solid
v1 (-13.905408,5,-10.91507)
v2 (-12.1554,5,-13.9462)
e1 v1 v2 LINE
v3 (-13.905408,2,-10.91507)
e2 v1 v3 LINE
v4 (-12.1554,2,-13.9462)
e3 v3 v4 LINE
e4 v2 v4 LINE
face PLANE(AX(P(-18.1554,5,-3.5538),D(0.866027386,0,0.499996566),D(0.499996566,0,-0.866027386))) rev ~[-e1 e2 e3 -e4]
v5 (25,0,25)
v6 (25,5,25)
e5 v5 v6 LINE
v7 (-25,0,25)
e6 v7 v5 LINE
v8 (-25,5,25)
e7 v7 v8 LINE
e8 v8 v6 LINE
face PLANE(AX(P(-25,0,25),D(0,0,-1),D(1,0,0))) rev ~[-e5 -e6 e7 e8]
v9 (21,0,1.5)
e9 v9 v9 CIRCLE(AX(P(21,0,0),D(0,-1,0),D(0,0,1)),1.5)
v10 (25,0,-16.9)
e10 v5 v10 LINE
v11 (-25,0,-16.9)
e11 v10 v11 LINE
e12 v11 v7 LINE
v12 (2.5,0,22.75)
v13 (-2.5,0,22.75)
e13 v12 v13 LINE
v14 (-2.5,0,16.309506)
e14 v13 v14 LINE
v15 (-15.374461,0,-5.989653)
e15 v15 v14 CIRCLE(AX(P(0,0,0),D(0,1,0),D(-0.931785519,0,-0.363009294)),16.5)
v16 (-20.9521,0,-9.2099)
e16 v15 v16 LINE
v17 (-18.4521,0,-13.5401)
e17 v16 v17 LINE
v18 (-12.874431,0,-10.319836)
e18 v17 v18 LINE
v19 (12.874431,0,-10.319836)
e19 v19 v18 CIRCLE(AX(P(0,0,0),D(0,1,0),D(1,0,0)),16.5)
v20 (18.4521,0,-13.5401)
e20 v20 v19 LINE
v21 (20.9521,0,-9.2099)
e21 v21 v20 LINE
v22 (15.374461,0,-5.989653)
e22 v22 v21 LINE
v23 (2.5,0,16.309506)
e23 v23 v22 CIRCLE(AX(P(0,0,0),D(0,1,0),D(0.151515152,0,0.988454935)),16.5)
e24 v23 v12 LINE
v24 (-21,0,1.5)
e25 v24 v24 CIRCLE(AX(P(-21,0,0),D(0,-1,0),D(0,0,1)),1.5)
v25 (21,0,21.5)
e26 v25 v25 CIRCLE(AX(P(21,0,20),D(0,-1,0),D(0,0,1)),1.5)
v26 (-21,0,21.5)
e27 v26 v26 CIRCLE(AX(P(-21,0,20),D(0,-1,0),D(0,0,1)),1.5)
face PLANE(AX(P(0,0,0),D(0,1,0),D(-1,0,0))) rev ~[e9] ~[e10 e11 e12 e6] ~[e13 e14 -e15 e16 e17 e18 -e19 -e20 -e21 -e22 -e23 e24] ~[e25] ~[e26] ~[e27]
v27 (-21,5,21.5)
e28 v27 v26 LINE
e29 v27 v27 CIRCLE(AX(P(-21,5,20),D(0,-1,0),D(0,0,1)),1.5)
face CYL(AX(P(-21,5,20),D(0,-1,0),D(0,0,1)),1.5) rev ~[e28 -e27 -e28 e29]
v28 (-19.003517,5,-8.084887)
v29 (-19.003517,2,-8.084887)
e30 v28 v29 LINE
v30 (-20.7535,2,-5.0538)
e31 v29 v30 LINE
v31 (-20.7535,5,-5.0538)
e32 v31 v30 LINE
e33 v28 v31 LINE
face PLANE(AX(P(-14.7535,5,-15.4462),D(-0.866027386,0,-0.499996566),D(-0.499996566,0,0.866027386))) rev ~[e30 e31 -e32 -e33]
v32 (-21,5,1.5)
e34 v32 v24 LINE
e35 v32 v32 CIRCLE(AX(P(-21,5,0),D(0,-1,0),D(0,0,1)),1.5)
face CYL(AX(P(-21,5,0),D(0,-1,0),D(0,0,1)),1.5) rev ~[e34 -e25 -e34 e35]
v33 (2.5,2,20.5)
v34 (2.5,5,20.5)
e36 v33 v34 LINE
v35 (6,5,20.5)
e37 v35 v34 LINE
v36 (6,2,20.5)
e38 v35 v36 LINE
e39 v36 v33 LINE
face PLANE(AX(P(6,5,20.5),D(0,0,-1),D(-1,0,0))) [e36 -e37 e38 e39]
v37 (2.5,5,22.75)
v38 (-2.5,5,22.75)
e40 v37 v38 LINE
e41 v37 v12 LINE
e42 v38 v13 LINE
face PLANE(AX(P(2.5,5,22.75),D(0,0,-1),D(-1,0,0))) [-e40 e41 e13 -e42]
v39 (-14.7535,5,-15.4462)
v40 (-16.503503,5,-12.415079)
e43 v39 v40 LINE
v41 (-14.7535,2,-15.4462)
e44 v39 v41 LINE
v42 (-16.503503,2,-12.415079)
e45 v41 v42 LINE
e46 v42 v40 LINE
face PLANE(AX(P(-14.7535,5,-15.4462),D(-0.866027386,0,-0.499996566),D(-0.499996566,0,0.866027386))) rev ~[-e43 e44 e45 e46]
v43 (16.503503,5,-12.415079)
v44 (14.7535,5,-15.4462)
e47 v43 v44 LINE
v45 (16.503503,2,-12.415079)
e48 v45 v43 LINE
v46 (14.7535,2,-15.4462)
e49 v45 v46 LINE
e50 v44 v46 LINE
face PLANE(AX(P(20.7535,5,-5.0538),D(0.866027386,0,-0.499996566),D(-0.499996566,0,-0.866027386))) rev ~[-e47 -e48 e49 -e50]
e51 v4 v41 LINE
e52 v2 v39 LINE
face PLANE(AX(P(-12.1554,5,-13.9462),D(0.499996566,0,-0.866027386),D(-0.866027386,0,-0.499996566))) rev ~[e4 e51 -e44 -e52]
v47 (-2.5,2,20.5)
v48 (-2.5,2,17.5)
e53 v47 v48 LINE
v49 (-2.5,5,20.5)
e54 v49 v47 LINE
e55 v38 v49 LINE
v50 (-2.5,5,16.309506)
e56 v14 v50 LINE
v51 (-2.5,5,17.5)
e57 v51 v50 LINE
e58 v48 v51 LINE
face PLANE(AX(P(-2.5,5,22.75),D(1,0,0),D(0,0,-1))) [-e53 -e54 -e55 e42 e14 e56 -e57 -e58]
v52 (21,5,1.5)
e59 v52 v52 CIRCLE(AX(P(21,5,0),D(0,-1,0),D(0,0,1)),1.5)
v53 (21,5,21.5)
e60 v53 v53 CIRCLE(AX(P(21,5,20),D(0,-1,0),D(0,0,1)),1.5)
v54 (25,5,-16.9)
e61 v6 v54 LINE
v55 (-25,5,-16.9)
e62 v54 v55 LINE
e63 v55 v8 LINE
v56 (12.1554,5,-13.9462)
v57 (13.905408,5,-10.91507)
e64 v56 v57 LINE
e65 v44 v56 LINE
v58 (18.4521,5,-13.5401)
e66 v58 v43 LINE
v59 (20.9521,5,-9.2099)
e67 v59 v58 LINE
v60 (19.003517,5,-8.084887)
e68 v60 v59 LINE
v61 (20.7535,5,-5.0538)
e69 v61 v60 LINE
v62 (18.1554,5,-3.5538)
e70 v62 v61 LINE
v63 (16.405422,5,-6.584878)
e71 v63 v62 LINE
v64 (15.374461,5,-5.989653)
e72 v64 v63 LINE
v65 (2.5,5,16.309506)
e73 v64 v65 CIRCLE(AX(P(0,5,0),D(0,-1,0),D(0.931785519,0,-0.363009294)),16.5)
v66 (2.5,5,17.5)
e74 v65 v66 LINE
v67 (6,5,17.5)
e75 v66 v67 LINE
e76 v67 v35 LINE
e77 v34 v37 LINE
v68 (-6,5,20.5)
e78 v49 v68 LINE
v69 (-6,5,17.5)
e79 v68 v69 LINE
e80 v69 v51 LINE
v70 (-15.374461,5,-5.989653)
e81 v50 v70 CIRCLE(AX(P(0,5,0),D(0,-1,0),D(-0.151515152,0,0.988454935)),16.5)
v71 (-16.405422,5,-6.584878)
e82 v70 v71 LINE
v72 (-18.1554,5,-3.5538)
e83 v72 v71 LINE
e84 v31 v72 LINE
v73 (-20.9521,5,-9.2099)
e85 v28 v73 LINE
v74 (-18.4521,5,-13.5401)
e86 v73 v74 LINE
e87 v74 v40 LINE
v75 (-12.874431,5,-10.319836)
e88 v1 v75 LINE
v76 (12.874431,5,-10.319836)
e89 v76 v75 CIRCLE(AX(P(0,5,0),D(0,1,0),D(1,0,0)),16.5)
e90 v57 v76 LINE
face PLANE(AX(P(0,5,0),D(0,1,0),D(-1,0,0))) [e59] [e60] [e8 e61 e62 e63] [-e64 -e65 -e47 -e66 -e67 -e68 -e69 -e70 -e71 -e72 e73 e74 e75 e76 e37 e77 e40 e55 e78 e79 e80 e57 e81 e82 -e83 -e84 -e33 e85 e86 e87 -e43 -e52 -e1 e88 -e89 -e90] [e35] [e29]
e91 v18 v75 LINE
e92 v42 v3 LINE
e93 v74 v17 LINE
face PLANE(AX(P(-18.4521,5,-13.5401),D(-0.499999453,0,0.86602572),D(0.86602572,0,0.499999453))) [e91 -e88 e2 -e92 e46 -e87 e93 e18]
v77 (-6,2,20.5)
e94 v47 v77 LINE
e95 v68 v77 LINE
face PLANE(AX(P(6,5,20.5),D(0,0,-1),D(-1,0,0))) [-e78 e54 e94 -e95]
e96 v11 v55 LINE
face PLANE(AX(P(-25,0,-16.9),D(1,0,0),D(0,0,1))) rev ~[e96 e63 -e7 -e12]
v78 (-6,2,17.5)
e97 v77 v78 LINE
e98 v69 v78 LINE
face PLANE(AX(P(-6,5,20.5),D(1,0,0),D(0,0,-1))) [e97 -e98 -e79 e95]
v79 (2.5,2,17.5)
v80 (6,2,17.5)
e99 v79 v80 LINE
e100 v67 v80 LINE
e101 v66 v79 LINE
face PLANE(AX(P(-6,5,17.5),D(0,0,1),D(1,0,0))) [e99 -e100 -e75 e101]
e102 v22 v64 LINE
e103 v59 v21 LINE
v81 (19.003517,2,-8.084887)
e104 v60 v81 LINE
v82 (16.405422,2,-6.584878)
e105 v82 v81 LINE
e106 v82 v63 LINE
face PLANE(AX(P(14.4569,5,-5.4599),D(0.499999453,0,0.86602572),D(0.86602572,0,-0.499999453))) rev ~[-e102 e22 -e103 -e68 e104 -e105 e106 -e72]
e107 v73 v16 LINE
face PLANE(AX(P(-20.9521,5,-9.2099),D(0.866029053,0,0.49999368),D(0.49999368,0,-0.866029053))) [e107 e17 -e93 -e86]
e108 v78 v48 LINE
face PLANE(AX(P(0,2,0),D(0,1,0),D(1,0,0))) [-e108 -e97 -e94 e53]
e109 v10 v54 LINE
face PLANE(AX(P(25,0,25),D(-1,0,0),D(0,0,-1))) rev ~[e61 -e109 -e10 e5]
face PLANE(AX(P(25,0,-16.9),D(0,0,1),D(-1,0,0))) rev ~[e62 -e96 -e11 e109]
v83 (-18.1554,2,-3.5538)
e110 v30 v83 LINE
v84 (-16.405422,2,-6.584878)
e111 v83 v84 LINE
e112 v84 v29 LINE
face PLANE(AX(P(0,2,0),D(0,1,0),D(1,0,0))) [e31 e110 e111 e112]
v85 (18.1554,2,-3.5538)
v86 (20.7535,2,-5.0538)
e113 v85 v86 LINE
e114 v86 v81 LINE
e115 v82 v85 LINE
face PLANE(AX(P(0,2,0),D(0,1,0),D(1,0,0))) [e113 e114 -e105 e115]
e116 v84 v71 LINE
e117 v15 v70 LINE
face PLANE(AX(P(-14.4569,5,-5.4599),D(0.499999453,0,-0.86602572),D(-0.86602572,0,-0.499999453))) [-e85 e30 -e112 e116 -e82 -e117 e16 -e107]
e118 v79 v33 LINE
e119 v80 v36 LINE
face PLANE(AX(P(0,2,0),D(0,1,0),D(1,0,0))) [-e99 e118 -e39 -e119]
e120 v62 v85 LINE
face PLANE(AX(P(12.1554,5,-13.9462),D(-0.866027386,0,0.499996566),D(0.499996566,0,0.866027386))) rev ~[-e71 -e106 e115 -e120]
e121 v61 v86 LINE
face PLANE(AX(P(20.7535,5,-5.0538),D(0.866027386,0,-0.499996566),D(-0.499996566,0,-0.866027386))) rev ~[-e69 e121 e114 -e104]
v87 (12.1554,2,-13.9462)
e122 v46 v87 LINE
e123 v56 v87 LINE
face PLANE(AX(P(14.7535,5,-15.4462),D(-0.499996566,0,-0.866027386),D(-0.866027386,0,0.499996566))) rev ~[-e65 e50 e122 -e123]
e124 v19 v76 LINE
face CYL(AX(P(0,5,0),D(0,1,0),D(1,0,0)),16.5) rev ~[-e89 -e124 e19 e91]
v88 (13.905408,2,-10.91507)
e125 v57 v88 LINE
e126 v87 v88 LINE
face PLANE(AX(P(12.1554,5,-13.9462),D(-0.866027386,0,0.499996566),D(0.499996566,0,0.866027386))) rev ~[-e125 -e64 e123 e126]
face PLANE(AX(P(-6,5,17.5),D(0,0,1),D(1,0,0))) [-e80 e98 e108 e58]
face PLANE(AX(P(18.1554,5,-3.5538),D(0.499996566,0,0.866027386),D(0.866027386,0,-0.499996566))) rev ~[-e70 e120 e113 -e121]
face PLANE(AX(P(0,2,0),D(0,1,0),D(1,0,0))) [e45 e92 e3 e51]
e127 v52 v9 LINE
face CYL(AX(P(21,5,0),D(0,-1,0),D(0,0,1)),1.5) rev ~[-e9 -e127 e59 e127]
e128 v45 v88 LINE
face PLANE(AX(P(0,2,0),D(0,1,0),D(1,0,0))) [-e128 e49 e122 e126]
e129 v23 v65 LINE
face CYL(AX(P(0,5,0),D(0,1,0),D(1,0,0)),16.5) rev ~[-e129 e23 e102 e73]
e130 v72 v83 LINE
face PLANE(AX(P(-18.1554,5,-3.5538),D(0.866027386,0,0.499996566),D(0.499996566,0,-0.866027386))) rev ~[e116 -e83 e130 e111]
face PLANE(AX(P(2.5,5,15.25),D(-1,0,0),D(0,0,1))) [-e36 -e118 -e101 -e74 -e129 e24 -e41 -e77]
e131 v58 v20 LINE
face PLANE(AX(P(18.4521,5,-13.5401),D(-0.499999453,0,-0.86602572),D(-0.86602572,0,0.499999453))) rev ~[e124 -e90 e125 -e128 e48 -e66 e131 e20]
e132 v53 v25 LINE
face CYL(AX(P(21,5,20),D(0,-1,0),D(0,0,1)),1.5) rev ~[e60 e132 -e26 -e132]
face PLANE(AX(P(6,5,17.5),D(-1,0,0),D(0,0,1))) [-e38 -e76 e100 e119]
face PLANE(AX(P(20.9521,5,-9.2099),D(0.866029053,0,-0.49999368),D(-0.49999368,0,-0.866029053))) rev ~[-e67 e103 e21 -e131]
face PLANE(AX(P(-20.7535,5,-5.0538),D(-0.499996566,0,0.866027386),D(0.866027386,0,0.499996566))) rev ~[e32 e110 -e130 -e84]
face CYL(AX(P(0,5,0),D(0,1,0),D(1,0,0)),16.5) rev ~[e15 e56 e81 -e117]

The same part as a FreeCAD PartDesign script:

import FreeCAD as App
import Part
import Sketcher
from FreeCAD import Vector
Q = App.Units.Quantity


def add_polygon(sketch, points):
    """Adds a closed chain of lines whose ends are joined by coincident constraints."""
    first, n = sketch.GeometryCount, len(points)
    for a, b in zip(points, points[1:] + points[:1]):
        sketch.addGeometry(Part.LineSegment(App.Vector(*a, 0), App.Vector(*b, 0)), False)
    for i in range(n):
        sketch.addConstraint(Sketcher.Constraint("Coincident", first + i, 2, first + (i + 1) % n, 1))

doc = App.newDocument("Part")
body = doc.addObject("PartDesign::Body", "Body")

# Sketch on XZ plane
sketch1 = body.newObject("Sketcher::SketchObject", "Sketch")
sketch1.AttachmentSupport = (doc.getObject("XZ_Plane"), [""])
sketch1.MapMode = "FlatFace"
add_polygon(sketch1, [(25, 25), (25, -17), (-25, -17), (-25, 25)])  # lines 0-3
sketch1.addConstraint(Sketcher.Constraint("Vertical", 0))
sketch1.addConstraint(Sketcher.Constraint("Horizontal", 1))
sketch1.addConstraint(Sketcher.Constraint("Vertical", 2))
sketch1.addConstraint(Sketcher.Constraint("Horizontal", 3))
sketch1.addConstraint(Sketcher.Constraint("DistanceX", 1, 2, 1, 1, 50.0))
sketch1.addConstraint(Sketcher.Constraint("DistanceX", -1, 1, 0, 2, 25.0))
sketch1.addConstraint(Sketcher.Constraint("DistanceY", -1, 1, 2, 2, 25.0))
sketch1.addConstraint(Sketcher.Constraint("DistanceY", 0, 2, -1, 1, 16.9))
pad1 = body.newObject("PartDesign::Pad", "Pad")
pad1.Profile = sketch1
pad1.Length = 5
pad1.Reversed = True

# Sketch on XZ plane
sketch2 = body.newObject("Sketcher::SketchObject", "Sketch001")
sketch2.AttachmentSupport = (doc.getObject("XZ_Plane"), [""])
sketch2.MapMode = "FlatFace"
sketch2.AttachmentOffset = App.Placement(Vector(0, 0, -5), App.Rotation())
sketch2.addGeometry(Part.Circle(Vector(0, 0, 0), Vector(0, 0, 1), 16), False)
sketch2.addConstraint(Sketcher.Constraint("Coincident", 0, 3, -1, 1))
sketch2.addConstraint(Sketcher.Constraint("Diameter", 0, 33.0))
pocket1 = body.newObject("PartDesign::Pocket", "Pocket")
pocket1.Profile = sketch2
pocket1.Length = 5
pocket1.Reversed = True

# Sketch on XZ plane
sketch3 = body.newObject("Sketcher::SketchObject", "Sketch002")
sketch3.AttachmentSupport = (doc.getObject("XZ_Plane"), [""])
sketch3.MapMode = "FlatFace"
sketch3.AttachmentOffset = App.Placement(Vector(0, 0, -5), App.Rotation())
add_polygon(sketch3, [(6, 17.5), (-6, 17.5), (-6, 20.5), (6, 20.5)])  # lines 0-3
add_polygon(sketch3, [(-12.2, -13.9), (-14.8, -15.4), (-20.8, -5.1), (-18.2, -3.6)])  # lines 4-7
add_polygon(sketch3, [(14.8, -15.4), (12.2, -13.9), (18.2, -3.6), (20.8, -5.1)])  # lines 8-11
sketch3.addConstraint(Sketcher.Constraint("Horizontal", 0))
sketch3.addConstraint(Sketcher.Constraint("Vertical", 1))
sketch3.addConstraint(Sketcher.Constraint("Horizontal", 2))
sketch3.addConstraint(Sketcher.Constraint("Vertical", 3))
sketch3.addConstraint(Sketcher.Constraint("Symmetric", 7, 2, 8, 2, -2))
sketch3.addConstraint(Sketcher.Constraint("Symmetric", 6, 2, 9, 2, -2))
sketch3.addConstraint(Sketcher.Constraint("Symmetric", 5, 2, 10, 2, -2))
sketch3.addConstraint(Sketcher.Constraint("Symmetric", 4, 2, 11, 2, -2))
sketch3.addConstraint(Sketcher.Constraint("Perpendicular", 4, 5))
sketch3.addConstraint(Sketcher.Constraint("Perpendicular", 5, 6))
sketch3.addConstraint(Sketcher.Constraint("Perpendicular", 6, 7))
sketch3.addConstraint(Sketcher.Constraint("DistanceX", 0, 2, 0, 1, 12.0))
sketch3.addConstraint(Sketcher.Constraint("DistanceY", 1, 1, 1, 2, 3.0))
sketch3.addConstraint(Sketcher.Constraint("Angle", 5, Q("119.9998 deg")))
sketch3.addConstraint(Sketcher.Constraint("Distance", 4, 3.0))
sketch3.addConstraint(Sketcher.Constraint("Distance", 5, 12.0))
sketch3.addConstraint(Sketcher.Constraint("DistanceX", 0, 2, -1, 1, 6.0))
sketch3.addConstraint(Sketcher.Constraint("DistanceY", -1, 1, 0, 2, 17.5))
sketch3.addConstraint(Sketcher.Constraint("DistanceX", 4, 2, 8, 2, 26.909))
sketch3.addConstraint(Sketcher.Constraint("DistanceY", 4, 2, -1, 1, 15.4462))
pocket2 = body.newObject("PartDesign::Pocket", "Pocket001")
pocket2.Profile = sketch3
pocket2.Length = 3
pocket2.Reversed = True

# Sketch on XZ plane
sketch4 = body.newObject("Sketcher::SketchObject", "Sketch003")
sketch4.AttachmentSupport = (doc.getObject("XZ_Plane"), [""])
sketch4.MapMode = "FlatFace"
sketch4.AttachmentOffset = App.Placement(Vector(0, 0, -5), App.Rotation())
add_polygon(sketch4, [(2, 23), (2, 15), (-2, 15), (-2, 23)])  # lines 0-3
add_polygon(sketch4, [(21, -9), (18, -14), (12, -10), (14, -5)])  # lines 4-7
add_polygon(sketch4, [(-12, -10), (-18, -14), (-21, -9), (-14, -5)])  # lines 8-11
sketch4.addConstraint(Sketcher.Constraint("Vertical", 0))
sketch4.addConstraint(Sketcher.Constraint("Horizontal", 1))
sketch4.addConstraint(Sketcher.Constraint("Vertical", 2))
sketch4.addConstraint(Sketcher.Constraint("Horizontal", 3))
sketch4.addConstraint(Sketcher.Constraint("Symmetric", 4, 2, 8, 2, -2))
sketch4.addConstraint(Sketcher.Constraint("Symmetric", 7, 2, 9, 2, -2))
sketch4.addConstraint(Sketcher.Constraint("Symmetric", 6, 2, 10, 2, -2))
sketch4.addConstraint(Sketcher.Constraint("Symmetric", 5, 2, 11, 2, -2))
sketch4.addConstraint(Sketcher.Constraint("Perpendicular", 4, 5))
sketch4.addConstraint(Sketcher.Constraint("Perpendicular", 5, 6))
sketch4.addConstraint(Sketcher.Constraint("Perpendicular", 6, 7))
sketch4.addConstraint(Sketcher.Constraint("DistanceX", 1, 2, 1, 1, 5.0))
sketch4.addConstraint(Sketcher.Constraint("Angle", 4, Q("-119.9996 deg")))
sketch4.addConstraint(Sketcher.Constraint("Distance", 4, 5.0))
sketch4.addConstraint(Sketcher.Constraint("DistanceY", 0, 2, 0, 1, 7.5))
sketch4.addConstraint(Sketcher.Constraint("Distance", 5, 7.5))
sketch4.addConstraint(Sketcher.Constraint("DistanceX", -1, 1, 0, 2, 2.5))
sketch4.addConstraint(Sketcher.Constraint("DistanceY", -1, 1, 0, 2, 15.25))
sketch4.addConstraint(Sketcher.Constraint("DistanceY", 4, 2, -1, 1, 13.54))
sketch4.addConstraint(Sketcher.Constraint("DistanceX", -1, 1, 4, 2, 18.452))
pocket3 = body.newObject("PartDesign::Pocket", "Pocket002")
pocket3.Profile = sketch4
pocket3.Length = 5
pocket3.Reversed = True

# Sketch on XZ plane
sketch5 = body.newObject("Sketcher::SketchObject", "Sketch004")
sketch5.AttachmentSupport = (doc.getObject("XZ_Plane"), [""])
sketch5.MapMode = "FlatFace"
sketch5.AttachmentOffset = App.Placement(Vector(0, 0, -5), App.Rotation())
sketch5.addGeometry(Part.Circle(Vector(21, 20, 0), Vector(0, 0, 1), 1.5), False)
sketch5.addGeometry(Part.Circle(Vector(-21, 20, 0), Vector(0, 0, 1), 1.5), False)
sketch5.addGeometry(Part.Circle(Vector(-21, 0, 0), Vector(0, 0, 1), 1.5), False)
sketch5.addGeometry(Part.Circle(Vector(21, 0, 0), Vector(0, 0, 1), 1.5), False)
sketch5.addGeometry(Part.Circle(Vector(15, 0, 0), Vector(0, 0, 1), 1.5), False)
sketch5.addGeometry(Part.Circle(Vector(-15, 0, 0), Vector(0, 0, 1), 1.5), False)
sketch5.addConstraint(Sketcher.Constraint("Equal", 0, 1))
sketch5.addConstraint(Sketcher.Constraint("Equal", 1, 2))
sketch5.addConstraint(Sketcher.Constraint("Equal", 2, 3))
sketch5.addConstraint(Sketcher.Constraint("Equal", 3, 4))
sketch5.addConstraint(Sketcher.Constraint("Equal", 4, 5))
sketch5.addConstraint(Sketcher.Constraint("Symmetric", 2, 3, 3, 3, -1, 1))
sketch5.addConstraint(Sketcher.Constraint("Symmetric", 4, 3, 5, 3, -1, 1))
sketch5.addConstraint(Sketcher.Constraint("Symmetric", 0, 3, 1, 3, -2))
sketch5.addConstraint(Sketcher.Constraint("PointOnObject", 2, 3, -1))
sketch5.addConstraint(Sketcher.Constraint("PointOnObject", 4, 3, -1))
sketch5.addConstraint(Sketcher.Constraint("Vertical", 1, 3, 2, 3))
sketch5.addConstraint(Sketcher.Constraint("Diameter", 0, 3.0))
sketch5.addConstraint(Sketcher.Constraint("DistanceX", -1, 1, 0, 3, 21.0))
sketch5.addConstraint(Sketcher.Constraint("DistanceY", -1, 1, 0, 3, 20.0))
sketch5.addConstraint(Sketcher.Constraint("DistanceX", -1, 1, 4, 3, 15.0))
doc.recompute()
hole = body.newObject("PartDesign::Hole", "Hole")
hole.Profile = sketch5
hole.ThreadType = "None"
hole.Diameter = 3
hole.DepthType = "ThroughAll"
hole.Reversed = True

doc.recompute()
